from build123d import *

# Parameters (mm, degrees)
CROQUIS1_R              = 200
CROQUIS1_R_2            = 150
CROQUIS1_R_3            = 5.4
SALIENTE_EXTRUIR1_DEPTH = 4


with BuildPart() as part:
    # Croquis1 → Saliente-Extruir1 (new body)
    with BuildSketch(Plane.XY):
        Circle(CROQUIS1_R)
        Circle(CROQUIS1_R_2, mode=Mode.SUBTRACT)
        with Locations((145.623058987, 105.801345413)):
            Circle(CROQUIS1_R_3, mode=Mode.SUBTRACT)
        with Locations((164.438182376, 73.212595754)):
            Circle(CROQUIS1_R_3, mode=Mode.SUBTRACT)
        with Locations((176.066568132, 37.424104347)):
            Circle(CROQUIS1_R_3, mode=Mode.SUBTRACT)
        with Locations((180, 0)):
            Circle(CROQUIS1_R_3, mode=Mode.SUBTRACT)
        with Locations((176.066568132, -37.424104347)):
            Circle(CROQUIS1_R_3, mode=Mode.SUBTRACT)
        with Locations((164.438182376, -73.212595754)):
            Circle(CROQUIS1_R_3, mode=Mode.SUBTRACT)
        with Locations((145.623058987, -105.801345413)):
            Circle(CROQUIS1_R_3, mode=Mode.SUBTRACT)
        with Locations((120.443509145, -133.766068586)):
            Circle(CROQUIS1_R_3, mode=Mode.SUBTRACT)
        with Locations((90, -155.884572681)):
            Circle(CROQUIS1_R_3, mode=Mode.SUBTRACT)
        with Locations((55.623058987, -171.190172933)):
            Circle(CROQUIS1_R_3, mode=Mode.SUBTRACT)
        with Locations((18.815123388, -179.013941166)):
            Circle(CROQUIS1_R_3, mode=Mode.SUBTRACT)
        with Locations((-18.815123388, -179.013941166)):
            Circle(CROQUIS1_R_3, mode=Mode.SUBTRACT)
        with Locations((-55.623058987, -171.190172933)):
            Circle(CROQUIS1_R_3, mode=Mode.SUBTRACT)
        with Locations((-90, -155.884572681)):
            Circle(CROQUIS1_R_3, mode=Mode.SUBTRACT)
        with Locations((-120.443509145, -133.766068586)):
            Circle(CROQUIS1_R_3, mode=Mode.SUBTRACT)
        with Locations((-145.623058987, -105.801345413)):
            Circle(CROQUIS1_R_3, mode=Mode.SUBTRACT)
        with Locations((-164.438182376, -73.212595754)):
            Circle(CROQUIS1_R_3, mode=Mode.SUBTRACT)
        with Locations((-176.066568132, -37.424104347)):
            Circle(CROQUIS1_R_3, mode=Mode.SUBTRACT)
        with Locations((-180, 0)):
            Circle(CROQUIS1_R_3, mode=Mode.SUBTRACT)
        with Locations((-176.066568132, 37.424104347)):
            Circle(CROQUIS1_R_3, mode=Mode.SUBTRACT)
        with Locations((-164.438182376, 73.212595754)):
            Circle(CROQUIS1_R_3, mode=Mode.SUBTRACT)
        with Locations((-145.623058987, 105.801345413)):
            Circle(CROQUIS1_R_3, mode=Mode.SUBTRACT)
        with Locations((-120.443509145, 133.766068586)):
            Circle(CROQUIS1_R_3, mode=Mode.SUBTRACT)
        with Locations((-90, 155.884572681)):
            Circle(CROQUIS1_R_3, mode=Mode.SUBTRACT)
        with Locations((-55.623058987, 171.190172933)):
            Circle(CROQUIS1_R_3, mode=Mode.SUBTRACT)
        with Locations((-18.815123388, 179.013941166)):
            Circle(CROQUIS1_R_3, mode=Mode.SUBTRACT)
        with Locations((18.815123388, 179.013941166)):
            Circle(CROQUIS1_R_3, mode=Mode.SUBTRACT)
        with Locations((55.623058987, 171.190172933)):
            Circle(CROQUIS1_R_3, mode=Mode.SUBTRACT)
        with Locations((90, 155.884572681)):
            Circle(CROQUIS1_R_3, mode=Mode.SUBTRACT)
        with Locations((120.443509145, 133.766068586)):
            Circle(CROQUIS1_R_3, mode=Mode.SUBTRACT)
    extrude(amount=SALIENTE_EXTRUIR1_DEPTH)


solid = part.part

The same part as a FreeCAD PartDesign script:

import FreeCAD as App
import Part
import Sketcher
Q = App.Units.Quantity

doc = App.newDocument("Part")
body = doc.addObject("PartDesign::Body", "Body")

sketch1 = doc.addObject("Sketcher::SketchObject", "Sketch")
body.addObject(sketch1)
sketch1.AttachmentSupport = (doc.XY_Plane, [""])
sketch1.MapMode = "FlatFace"
sketch1.addGeometry(Part.Circle(App.Vector(0, 0, 0), App.Vector(0, 0, 1), 200), False)
sketch1.addGeometry(Part.Circle(App.Vector(-146, -106, 0), App.Vector(0, 0, 1), 5), False)
sketch1.addGeometry(Part.Circle(App.Vector(-120, -134, 0), App.Vector(0, 0, 1), 5), False)
sketch1.addGeometry(Part.Circle(App.Vector(-56, -171, 0), App.Vector(0, 0, 1), 5), False)
sketch1.addGeometry(Part.Circle(App.Vector(-90, -156, 0), App.Vector(0, 0, 1), 5), False)
sketch1.addGeometry(Part.Circle(App.Vector(-19, -179, 0), App.Vector(0, 0, 1), 5), False)
sketch1.addGeometry(Part.Circle(App.Vector(-164, -73, 0), App.Vector(0, 0, 1), 5), False)
sketch1.addGeometry(Part.Circle(App.Vector(-176, -37, 0), App.Vector(0, 0, 1), 5), False)
sketch1.addGeometry(Part.Circle(App.Vector(-180, 0, 0), App.Vector(0, 0, 1), 5), False)
sketch1.addGeometry(Part.Circle(App.Vector(0, 0, 0), App.Vector(0, 0, 1), 150), False)
sketch1.addGeometry(Part.Circle(App.Vector(19, -179, 0), App.Vector(0, 0, 1), 5), False)
sketch1.addGeometry(Part.Circle(App.Vector(56, -171, 0), App.Vector(0, 0, 1), 5), False)
sketch1.addGeometry(Part.Circle(App.Vector(90, -156, 0), App.Vector(0, 0, 1), 5), False)
sketch1.addGeometry(Part.Circle(App.Vector(120, -134, 0), App.Vector(0, 0, 1), 5), False)
sketch1.addGeometry(Part.Circle(App.Vector(146, -106, 0), App.Vector(0, 0, 1), 5), False)
sketch1.addGeometry(Part.Circle(App.Vector(164, -73, 0), App.Vector(0, 0, 1), 5), False)
sketch1.addGeometry(Part.Circle(App.Vector(176, -37, 0), App.Vector(0, 0, 1), 5), False)
sketch1.addGeometry(Part.Circle(App.Vector(180, 0, 0), App.Vector(0, 0, 1), 5), False)
sketch1.addGeometry(Part.Circle(App.Vector(-176, 37, 0), App.Vector(0, 0, 1), 5), False)
sketch1.addGeometry(Part.Circle(App.Vector(-164, 73, 0), App.Vector(0, 0, 1), 5), False)
sketch1.addGeometry(Part.Circle(App.Vector(-146, 106, 0), App.Vector(0, 0, 1), 5), False)
sketch1.addGeometry(Part.Circle(App.Vector(-120, 134, 0), App.Vector(0, 0, 1), 5), False)
sketch1.addGeometry(Part.Circle(App.Vector(-90, 156, 0), App.Vector(0, 0, 1), 5), False)
sketch1.addGeometry(Part.Circle(App.Vector(-56, 171, 0), App.Vector(0, 0, 1), 5), False)
sketch1.addGeometry(Part.Circle(App.Vector(-19, 179, 0), App.Vector(0, 0, 1), 5), False)
sketch1.addGeometry(Part.Circle(App.Vector(176, 37, 0), App.Vector(0, 0, 1), 5), False)
sketch1.addGeometry(Part.Circle(App.Vector(164, 73, 0), App.Vector(0, 0, 1), 5), False)
sketch1.addGeometry(Part.Circle(App.Vector(19, 179, 0), App.Vector(0, 0, 1), 5), False)
sketch1.addGeometry(Part.Circle(App.Vector(90, 156, 0), App.Vector(0, 0, 1), 5), False)
sketch1.addGeometry(Part.Circle(App.Vector(56, 171, 0), App.Vector(0, 0, 1), 5), False)
sketch1.addGeometry(Part.Circle(App.Vector(120, 134, 0), App.Vector(0, 0, 1), 5), False)
sketch1.addGeometry(Part.Circle(App.Vector(146, 106, 0), App.Vector(0, 0, 1), 5), False)
sketch1.addConstraint(Sketcher.Constraint("Coincident", 0, 3, -1, 1))
sketch1.addConstraint(Sketcher.Constraint("Coincident", 9, 3, -1, 1))
sketch1.addConstraint(Sketcher.Constraint("Equal", 1, 2))
sketch1.addConstraint(Sketcher.Constraint("Equal", 2, 3))
sketch1.addConstraint(Sketcher.Constraint("Equal", 3, 4))
sketch1.addConstraint(Sketcher.Constraint("Equal", 4, 5))
sketch1.addConstraint(Sketcher.Constraint("Equal", 5, 6))
sketch1.addConstraint(Sketcher.Constraint("Equal", 6, 7))
sketch1.addConstraint(Sketcher.Constraint("Equal", 7, 8))
sketch1.addConstraint(Sketcher.Constraint("Equal", 8, 10))
sketch1.addConstraint(Sketcher.Constraint("Equal", 10, 11))
sketch1.addConstraint(Sketcher.Constraint("Equal", 11, 12))
sketch1.addConstraint(Sketcher.Constraint("Equal", 12, 13))
sketch1.addConstraint(Sketcher.Constraint("Equal", 13, 14))
sketch1.addConstraint(Sketcher.Constraint("Equal", 14, 15))
sketch1.addConstraint(Sketcher.Constraint("Equal", 15, 16))
sketch1.addConstraint(Sketcher.Constraint("Equal", 16, 17))
sketch1.addConstraint(Sketcher.Constraint("Equal", 17, 18))
sketch1.addConstraint(Sketcher.Constraint("Equal", 18, 19))
sketch1.addConstraint(Sketcher.Constraint("Equal", 19, 20))
sketch1.addConstraint(Sketcher.Constraint("Equal", 20, 21))
sketch1.addConstraint(Sketcher.Constraint("Equal", 21, 22))
sketch1.addConstraint(Sketcher.Constraint("Equal", 22, 23))
sketch1.addConstraint(Sketcher.Constraint("Equal", 23, 24))
sketch1.addConstraint(Sketcher.Constraint("Equal", 24, 25))
sketch1.addConstraint(Sketcher.Constraint("Equal", 25, 26))
sketch1.addConstraint(Sketcher.Constraint("Equal", 26, 27))
sketch1.addConstraint(Sketcher.Constraint("Equal", 27, 28))
sketch1.addConstraint(Sketcher.Constraint("Equal", 28, 29))
sketch1.addConstraint(Sketcher.Constraint("Equal", 29, 30))
sketch1.addConstraint(Sketcher.Constraint("Equal", 30, 31))
sketch1.addConstraint(Sketcher.Constraint("Symmetric", 8, 3, 17, 3, -1, 1))
sketch1.addConstraint(Sketcher.Constraint("Symmetric", 16, 3, 18, 3, -1, 1))
sketch1.addConstraint(Sketcher.Constraint("Symmetric", 15, 3, 19, 3, -1, 1))
sketch1.addConstraint(Sketcher.Constraint("Symmetric", 14, 3, 20, 3, -1, 1))
sketch1.addConstraint(Sketcher.Constraint("Symmetric", 13, 3, 21, 3, -1, 1))
sketch1.addConstraint(Sketcher.Constraint("Symmetric", 12, 3, 22, 3, -1, 1))
sketch1.addConstraint(Sketcher.Constraint("Symmetric", 11, 3, 23, 3, -1, 1))
sketch1.addConstraint(Sketcher.Constraint("Symmetric", 10, 3, 24, 3, -1, 1))
sketch1.addConstraint(Sketcher.Constraint("Symmetric", 7, 3, 25, 3, -1, 1))
sketch1.addConstraint(Sketcher.Constraint("Symmetric", 6, 3, 26, 3, -1, 1))
sketch1.addConstraint(Sketcher.Constraint("Symmetric", 5, 3, 27, 3, -1, 1))
sketch1.addConstraint(Sketcher.Constraint("Symmetric", 4, 3, 28, 3, -1, 1))
sketch1.addConstraint(Sketcher.Constraint("Symmetric", 3, 3, 29, 3, -1, 1))
sketch1.addConstraint(Sketcher.Constraint("Symmetric", 2, 3, 30, 3, -1, 1))
sketch1.addConstraint(Sketcher.Constraint("Symmetric", 1, 3, 31, 3, -1, 1))
sketch1.addConstraint(Sketcher.Constraint("Symmetric", 5, 3, 10, 3, -2))
sketch1.addConstraint(Sketcher.Constraint("Symmetric", 3, 3, 11, 3, -2))
sketch1.addConstraint(Sketcher.Constraint("Symmetric", 4, 3, 12, 3, -2))
sketch1.addConstraint(Sketcher.Constraint("Symmetric", 2, 3, 13, 3, -2))
sketch1.addConstraint(Sketcher.Constraint("Symmetric", 1, 3, 14, 3, -2))
sketch1.addConstraint(Sketcher.Constraint("Symmetric", 6, 3, 15, 3, -2))
sketch1.addConstraint(Sketcher.Constraint("Symmetric", 7, 3, 16, 3, -2))
sketch1.addConstraint(Sketcher.Constraint("PointOnObject", 8, 3, -1))
sketch1.addConstraint(Sketcher.Constraint("Diameter", 0, Q("400 mm")))
sketch1.addConstraint(Sketcher.Constraint("Diameter", 9, Q("300 mm")))
sketch1.addConstraint(Sketcher.Constraint("Diameter", 1, Q("10.8 mm")))
sketch1.addConstraint(Sketcher.Constraint("DistanceX", 4, 3, -1, 1, Q("90 mm")))
sketch1.addConstraint(Sketcher.Constraint("DistanceX", 8, 3, -1, 1, Q("180 mm")))
sketch1.addConstraint(Sketcher.Constraint("DistanceX", 1, 3, 3, 3, Q("90 mm")))
sketch1.addConstraint(Sketcher.Constraint("DistanceY", 3, 3, 4, 3, Q("15.3056 mm")))
sketch1.addConstraint(Sketcher.Constraint("DistanceY", 6, 3, 18, 3, Q("110.6367 mm")))
sketch1.addConstraint(Sketcher.Constraint("DistanceX", 1, 3, -1, 1, Q("145.623059 mm")))
sketch1.addConstraint(Sketcher.Constraint("DistanceX", 2, 3, -1, 1, Q("120.443509 mm")))
sketch1.addConstraint(Sketcher.Constraint("DistanceY", 2, 3, -1, 1, Q("133.766069 mm")))
sketch1.addConstraint(Sketcher.Constraint("DistanceY", 5, 3, -1, 1, Q("179.013941 mm")))
sketch1.addConstraint(Sketcher.Constraint("DistanceX", 7, 3, -1, 1, Q("176.066568 mm")))
sketch1.addConstraint(Sketcher.Constraint("DistanceY", 5, 3, 3, 3, Q("7.823768 mm")))
sketch1.addConstraint(Sketcher.Constraint("DistanceY", 1, 3, 6, 3, Q("32.58875 mm")))
sketch1.addConstraint(Sketcher.Constraint("DistanceX", 6, 3, 5, 3, Q("145.623059 mm")))
sketch1.addConstraint(Sketcher.Constraint("DistanceY", 6, 3, 7, 3, Q("35.788491 mm")))
sketch1.addConstraint(Sketcher.Constraint("DistanceX", 5, 3, -1, 1, Q("18.815123 mm")))
pad1 = doc.addObject("PartDesign::Pad", "Pad")
body.addObject(pad1)
pad1.Profile = sketch1
pad1.Length = 4

doc.recompute()
